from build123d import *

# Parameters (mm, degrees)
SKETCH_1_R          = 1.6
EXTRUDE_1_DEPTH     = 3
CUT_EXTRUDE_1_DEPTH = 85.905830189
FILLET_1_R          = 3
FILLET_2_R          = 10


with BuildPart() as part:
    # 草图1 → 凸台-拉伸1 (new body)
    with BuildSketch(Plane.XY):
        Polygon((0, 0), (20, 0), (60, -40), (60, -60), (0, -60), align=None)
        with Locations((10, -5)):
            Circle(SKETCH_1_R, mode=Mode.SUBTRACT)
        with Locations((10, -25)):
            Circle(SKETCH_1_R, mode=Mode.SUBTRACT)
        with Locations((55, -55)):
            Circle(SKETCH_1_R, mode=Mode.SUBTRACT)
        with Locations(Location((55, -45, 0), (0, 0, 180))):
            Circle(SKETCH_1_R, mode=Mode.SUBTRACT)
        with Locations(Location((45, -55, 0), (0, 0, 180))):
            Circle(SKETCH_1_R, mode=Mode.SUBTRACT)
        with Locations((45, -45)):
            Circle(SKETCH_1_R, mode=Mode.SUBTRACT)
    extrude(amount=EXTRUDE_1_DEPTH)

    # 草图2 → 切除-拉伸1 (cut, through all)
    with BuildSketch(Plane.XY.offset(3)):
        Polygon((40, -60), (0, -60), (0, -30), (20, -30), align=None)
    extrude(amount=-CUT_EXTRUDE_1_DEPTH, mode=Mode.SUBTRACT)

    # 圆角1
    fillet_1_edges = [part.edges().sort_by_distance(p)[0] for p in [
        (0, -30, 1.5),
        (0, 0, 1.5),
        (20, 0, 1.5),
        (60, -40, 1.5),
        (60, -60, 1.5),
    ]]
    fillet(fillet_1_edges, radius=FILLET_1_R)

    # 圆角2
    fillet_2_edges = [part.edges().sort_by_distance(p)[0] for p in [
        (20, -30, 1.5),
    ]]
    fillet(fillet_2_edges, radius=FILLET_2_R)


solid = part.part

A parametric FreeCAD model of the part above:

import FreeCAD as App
import Part
import Sketcher


def edges_at(feature, points):
    """Names of the edges that pass closest to the given points."""
    edges = feature.Shape.Edges
    near = lambda p: min(range(len(edges)), key=lambda i: edges[i].distToShape(Part.Vertex(*p))[0])
    return sorted({f"Edge{near(p) + 1}" for p in points})


def add_polygon(sketch, points):
    """Adds a closed chain of lines whose ends are joined by coincident constraints."""
    first, n = sketch.GeometryCount, len(points)
    for a, b in zip(points, points[1:] + points[:1]):
        sketch.addGeometry(Part.LineSegment(App.Vector(*a, 0), App.Vector(*b, 0)), False)
    for i in range(n):
        sketch.addConstraint(Sketcher.Constraint("Coincident", first + i, 2, first + (i + 1) % n, 1))

doc = App.newDocument("Part")
params = doc.addObject("Spreadsheet::Sheet", "Params")
for row, (alias, value) in enumerate([
    ("sketch1_diameter", "3.2 mm"),
    ("sketch1_width", "20 mm"),
    ("sketch1_width2", "60 mm"),
    ("pad1_length", "3 mm"),
    ("sketch2_width", "40 mm"),
    ("sketch2_width2", "20 mm"),
    ("sketch2_height", "30 mm"),
    ("fillet_radius", "3 mm"),
    ("fillet2_radius", "10 mm"),
], start=1):
    params.set(f"A{row}", alias)
    params.set(f"B{row}", "=" + value)
    params.setAlias(f"B{row}", alias)

body = doc.addObject("PartDesign::Body", "Body")

sketch1 = body.newObject("Sketcher::SketchObject", "Sketch")
sketch1.AttachmentSupport = (doc.getObject("XY_Plane"), [""])
sketch1.MapMode = "FlatFace"
add_polygon(sketch1, [(20, 0), (0, 0), (0, -60), (60, -60), (60, -40)])
sketch1.addGeometry(Part.Circle(App.Vector(55, -55, 0), App.Vector(0, 0, 1), 1.6), False)
sketch1.addGeometry(Part.Circle(App.Vector(45, -55, 0), App.Vector(0, 0, 1), 1.6), False)
sketch1.addGeometry(Part.Circle(App.Vector(55, -45, 0), App.Vector(0, 0, 1), 1.6), False)
sketch1.addGeometry(Part.Circle(App.Vector(45, -45, 0), App.Vector(0, 0, 1), 1.6), False)
sketch1.addGeometry(Part.Circle(App.Vector(10, -25, 0), App.Vector(0, 0, 1), 1.6), False)
sketch1.addGeometry(Part.Circle(App.Vector(10, -5, 0), App.Vector(0, 0, 1), 1.6), False)
sketch1.addConstraint([
    Sketcher.Constraint("Horizontal", 0),
    Sketcher.Constraint("Vertical", 1),
    Sketcher.Constraint("Horizontal", 2),
    Sketcher.Constraint("Vertical", 3),
    Sketcher.Constraint("Coincident", 0, 2, -1, 1),
    Sketcher.Constraint("Equal", 5, 6),
    Sketcher.Constraint("Equal", 6, 7),
    Sketcher.Constraint("Equal", 7, 8),
    Sketcher.Constraint("Equal", 8, 9),
    Sketcher.Constraint("Equal", 9, 10),
    Sketcher.Constraint("Horizontal", 5, 3, 6, 3),
    Sketcher.Constraint("Horizontal", 7, 3, 8, 3),
    Sketcher.Constraint("Vertical", 5, 3, 7, 3),
    Sketcher.Constraint("Vertical", 6, 3, 8, 3),
    Sketcher.Constraint("Vertical", 9, 3, 10, 3),
    Sketcher.Constraint("Equal", 2, 1),
    Sketcher.Constraint("Equal", 0, 3),
    Sketcher.Constraint("Diameter", 5, 3.2),
    Sketcher.Constraint("DistanceX", 0, 2, 0, 1, 20.0),
    Sketcher.Constraint("DistanceX", 2, 1, 2, 2, 60.0),
    Sketcher.Constraint("DistanceX", -1, 1, 5, 3, 55.0),
    Sketcher.Constraint("DistanceY", 5, 3, -1, 1, 55.0),
    Sketcher.Constraint("DistanceX", -1, 1, 6, 3, 45.0),
    Sketcher.Constraint("DistanceY", 7, 3, -1, 1, 45.0),
    Sketcher.Constraint("DistanceX", -1, 1, 9, 3, 10.0),
    Sketcher.Constraint("DistanceY", 9, 3, -1, 1, 25.0),
    Sketcher.Constraint("DistanceY", 10, 3, -1, 1, 5.0),
])
sketch1.setExpression("Constraints[22]", "Params.sketch1_diameter")
sketch1.setExpression("Constraints[23]", "Params.sketch1_width")
sketch1.setExpression("Constraints[24]", "Params.sketch1_width2")
pad1 = body.newObject("PartDesign::Pad", "Pad")
pad1.Profile = sketch1
pad1.setExpression("Length", "Params.pad1_length")

sketch2 = body.newObject("Sketcher::SketchObject", "Sketch001")
sketch2.AttachmentSupport = (doc.getObject("XY_Plane"), [""])
sketch2.MapMode = "FlatFace"
sketch2.AttachmentOffset = App.Placement(App.Vector(0, 0, 3), App.Rotation())
add_polygon(sketch2, [(0, -60), (40, -60), (20, -30), (0, -30)])
sketch2.addConstraint([
    Sketcher.Constraint("Horizontal", 0),
    Sketcher.Constraint("Horizontal", 2),
    Sketcher.Constraint("Vertical", 3),
    Sketcher.Constraint("PointOnObject", 2, 2, -2),
    Sketcher.Constraint("DistanceX", 0, 1, 0, 2, 40.0),
    Sketcher.Constraint("DistanceX", 2, 2, 2, 1, 20.0),
    Sketcher.Constraint("DistanceY", 3, 2, 3, 1, 30.0),
    Sketcher.Constraint("DistanceY", 0, 2, -1, 1, 60.0),
])
sketch2.setExpression("Constraints[8]", "Params.sketch2_width")
sketch2.setExpression("Constraints[9]", "Params.sketch2_width2")
sketch2.setExpression("Constraints[10]", "Params.sketch2_height")
pocket1 = body.newObject("PartDesign::Pocket", "Pocket")
pocket1.Profile = sketch2
pocket1.Type = "ThroughAll"
doc.recompute()

fillet = body.newObject("PartDesign::Fillet", "Fillet")
fillet.Base = (pocket1, edges_at(pocket1, [
    (0, -30, 1.5),
    (0, 0, 1.5),
    (20, 0, 1.5),
    (60, -40, 1.5),
    (60, -60, 1.5),
]))
fillet.setExpression("Radius", "Params.fillet_radius")
doc.recompute()

fillet2 = body.newObject("PartDesign::Fillet", "Fillet001")
fillet2.Base = (fillet, edges_at(fillet, [(20, -30, 1.5)]))
fillet2.setExpression("Radius", "Params.fillet2_radius")

doc.recompute()
